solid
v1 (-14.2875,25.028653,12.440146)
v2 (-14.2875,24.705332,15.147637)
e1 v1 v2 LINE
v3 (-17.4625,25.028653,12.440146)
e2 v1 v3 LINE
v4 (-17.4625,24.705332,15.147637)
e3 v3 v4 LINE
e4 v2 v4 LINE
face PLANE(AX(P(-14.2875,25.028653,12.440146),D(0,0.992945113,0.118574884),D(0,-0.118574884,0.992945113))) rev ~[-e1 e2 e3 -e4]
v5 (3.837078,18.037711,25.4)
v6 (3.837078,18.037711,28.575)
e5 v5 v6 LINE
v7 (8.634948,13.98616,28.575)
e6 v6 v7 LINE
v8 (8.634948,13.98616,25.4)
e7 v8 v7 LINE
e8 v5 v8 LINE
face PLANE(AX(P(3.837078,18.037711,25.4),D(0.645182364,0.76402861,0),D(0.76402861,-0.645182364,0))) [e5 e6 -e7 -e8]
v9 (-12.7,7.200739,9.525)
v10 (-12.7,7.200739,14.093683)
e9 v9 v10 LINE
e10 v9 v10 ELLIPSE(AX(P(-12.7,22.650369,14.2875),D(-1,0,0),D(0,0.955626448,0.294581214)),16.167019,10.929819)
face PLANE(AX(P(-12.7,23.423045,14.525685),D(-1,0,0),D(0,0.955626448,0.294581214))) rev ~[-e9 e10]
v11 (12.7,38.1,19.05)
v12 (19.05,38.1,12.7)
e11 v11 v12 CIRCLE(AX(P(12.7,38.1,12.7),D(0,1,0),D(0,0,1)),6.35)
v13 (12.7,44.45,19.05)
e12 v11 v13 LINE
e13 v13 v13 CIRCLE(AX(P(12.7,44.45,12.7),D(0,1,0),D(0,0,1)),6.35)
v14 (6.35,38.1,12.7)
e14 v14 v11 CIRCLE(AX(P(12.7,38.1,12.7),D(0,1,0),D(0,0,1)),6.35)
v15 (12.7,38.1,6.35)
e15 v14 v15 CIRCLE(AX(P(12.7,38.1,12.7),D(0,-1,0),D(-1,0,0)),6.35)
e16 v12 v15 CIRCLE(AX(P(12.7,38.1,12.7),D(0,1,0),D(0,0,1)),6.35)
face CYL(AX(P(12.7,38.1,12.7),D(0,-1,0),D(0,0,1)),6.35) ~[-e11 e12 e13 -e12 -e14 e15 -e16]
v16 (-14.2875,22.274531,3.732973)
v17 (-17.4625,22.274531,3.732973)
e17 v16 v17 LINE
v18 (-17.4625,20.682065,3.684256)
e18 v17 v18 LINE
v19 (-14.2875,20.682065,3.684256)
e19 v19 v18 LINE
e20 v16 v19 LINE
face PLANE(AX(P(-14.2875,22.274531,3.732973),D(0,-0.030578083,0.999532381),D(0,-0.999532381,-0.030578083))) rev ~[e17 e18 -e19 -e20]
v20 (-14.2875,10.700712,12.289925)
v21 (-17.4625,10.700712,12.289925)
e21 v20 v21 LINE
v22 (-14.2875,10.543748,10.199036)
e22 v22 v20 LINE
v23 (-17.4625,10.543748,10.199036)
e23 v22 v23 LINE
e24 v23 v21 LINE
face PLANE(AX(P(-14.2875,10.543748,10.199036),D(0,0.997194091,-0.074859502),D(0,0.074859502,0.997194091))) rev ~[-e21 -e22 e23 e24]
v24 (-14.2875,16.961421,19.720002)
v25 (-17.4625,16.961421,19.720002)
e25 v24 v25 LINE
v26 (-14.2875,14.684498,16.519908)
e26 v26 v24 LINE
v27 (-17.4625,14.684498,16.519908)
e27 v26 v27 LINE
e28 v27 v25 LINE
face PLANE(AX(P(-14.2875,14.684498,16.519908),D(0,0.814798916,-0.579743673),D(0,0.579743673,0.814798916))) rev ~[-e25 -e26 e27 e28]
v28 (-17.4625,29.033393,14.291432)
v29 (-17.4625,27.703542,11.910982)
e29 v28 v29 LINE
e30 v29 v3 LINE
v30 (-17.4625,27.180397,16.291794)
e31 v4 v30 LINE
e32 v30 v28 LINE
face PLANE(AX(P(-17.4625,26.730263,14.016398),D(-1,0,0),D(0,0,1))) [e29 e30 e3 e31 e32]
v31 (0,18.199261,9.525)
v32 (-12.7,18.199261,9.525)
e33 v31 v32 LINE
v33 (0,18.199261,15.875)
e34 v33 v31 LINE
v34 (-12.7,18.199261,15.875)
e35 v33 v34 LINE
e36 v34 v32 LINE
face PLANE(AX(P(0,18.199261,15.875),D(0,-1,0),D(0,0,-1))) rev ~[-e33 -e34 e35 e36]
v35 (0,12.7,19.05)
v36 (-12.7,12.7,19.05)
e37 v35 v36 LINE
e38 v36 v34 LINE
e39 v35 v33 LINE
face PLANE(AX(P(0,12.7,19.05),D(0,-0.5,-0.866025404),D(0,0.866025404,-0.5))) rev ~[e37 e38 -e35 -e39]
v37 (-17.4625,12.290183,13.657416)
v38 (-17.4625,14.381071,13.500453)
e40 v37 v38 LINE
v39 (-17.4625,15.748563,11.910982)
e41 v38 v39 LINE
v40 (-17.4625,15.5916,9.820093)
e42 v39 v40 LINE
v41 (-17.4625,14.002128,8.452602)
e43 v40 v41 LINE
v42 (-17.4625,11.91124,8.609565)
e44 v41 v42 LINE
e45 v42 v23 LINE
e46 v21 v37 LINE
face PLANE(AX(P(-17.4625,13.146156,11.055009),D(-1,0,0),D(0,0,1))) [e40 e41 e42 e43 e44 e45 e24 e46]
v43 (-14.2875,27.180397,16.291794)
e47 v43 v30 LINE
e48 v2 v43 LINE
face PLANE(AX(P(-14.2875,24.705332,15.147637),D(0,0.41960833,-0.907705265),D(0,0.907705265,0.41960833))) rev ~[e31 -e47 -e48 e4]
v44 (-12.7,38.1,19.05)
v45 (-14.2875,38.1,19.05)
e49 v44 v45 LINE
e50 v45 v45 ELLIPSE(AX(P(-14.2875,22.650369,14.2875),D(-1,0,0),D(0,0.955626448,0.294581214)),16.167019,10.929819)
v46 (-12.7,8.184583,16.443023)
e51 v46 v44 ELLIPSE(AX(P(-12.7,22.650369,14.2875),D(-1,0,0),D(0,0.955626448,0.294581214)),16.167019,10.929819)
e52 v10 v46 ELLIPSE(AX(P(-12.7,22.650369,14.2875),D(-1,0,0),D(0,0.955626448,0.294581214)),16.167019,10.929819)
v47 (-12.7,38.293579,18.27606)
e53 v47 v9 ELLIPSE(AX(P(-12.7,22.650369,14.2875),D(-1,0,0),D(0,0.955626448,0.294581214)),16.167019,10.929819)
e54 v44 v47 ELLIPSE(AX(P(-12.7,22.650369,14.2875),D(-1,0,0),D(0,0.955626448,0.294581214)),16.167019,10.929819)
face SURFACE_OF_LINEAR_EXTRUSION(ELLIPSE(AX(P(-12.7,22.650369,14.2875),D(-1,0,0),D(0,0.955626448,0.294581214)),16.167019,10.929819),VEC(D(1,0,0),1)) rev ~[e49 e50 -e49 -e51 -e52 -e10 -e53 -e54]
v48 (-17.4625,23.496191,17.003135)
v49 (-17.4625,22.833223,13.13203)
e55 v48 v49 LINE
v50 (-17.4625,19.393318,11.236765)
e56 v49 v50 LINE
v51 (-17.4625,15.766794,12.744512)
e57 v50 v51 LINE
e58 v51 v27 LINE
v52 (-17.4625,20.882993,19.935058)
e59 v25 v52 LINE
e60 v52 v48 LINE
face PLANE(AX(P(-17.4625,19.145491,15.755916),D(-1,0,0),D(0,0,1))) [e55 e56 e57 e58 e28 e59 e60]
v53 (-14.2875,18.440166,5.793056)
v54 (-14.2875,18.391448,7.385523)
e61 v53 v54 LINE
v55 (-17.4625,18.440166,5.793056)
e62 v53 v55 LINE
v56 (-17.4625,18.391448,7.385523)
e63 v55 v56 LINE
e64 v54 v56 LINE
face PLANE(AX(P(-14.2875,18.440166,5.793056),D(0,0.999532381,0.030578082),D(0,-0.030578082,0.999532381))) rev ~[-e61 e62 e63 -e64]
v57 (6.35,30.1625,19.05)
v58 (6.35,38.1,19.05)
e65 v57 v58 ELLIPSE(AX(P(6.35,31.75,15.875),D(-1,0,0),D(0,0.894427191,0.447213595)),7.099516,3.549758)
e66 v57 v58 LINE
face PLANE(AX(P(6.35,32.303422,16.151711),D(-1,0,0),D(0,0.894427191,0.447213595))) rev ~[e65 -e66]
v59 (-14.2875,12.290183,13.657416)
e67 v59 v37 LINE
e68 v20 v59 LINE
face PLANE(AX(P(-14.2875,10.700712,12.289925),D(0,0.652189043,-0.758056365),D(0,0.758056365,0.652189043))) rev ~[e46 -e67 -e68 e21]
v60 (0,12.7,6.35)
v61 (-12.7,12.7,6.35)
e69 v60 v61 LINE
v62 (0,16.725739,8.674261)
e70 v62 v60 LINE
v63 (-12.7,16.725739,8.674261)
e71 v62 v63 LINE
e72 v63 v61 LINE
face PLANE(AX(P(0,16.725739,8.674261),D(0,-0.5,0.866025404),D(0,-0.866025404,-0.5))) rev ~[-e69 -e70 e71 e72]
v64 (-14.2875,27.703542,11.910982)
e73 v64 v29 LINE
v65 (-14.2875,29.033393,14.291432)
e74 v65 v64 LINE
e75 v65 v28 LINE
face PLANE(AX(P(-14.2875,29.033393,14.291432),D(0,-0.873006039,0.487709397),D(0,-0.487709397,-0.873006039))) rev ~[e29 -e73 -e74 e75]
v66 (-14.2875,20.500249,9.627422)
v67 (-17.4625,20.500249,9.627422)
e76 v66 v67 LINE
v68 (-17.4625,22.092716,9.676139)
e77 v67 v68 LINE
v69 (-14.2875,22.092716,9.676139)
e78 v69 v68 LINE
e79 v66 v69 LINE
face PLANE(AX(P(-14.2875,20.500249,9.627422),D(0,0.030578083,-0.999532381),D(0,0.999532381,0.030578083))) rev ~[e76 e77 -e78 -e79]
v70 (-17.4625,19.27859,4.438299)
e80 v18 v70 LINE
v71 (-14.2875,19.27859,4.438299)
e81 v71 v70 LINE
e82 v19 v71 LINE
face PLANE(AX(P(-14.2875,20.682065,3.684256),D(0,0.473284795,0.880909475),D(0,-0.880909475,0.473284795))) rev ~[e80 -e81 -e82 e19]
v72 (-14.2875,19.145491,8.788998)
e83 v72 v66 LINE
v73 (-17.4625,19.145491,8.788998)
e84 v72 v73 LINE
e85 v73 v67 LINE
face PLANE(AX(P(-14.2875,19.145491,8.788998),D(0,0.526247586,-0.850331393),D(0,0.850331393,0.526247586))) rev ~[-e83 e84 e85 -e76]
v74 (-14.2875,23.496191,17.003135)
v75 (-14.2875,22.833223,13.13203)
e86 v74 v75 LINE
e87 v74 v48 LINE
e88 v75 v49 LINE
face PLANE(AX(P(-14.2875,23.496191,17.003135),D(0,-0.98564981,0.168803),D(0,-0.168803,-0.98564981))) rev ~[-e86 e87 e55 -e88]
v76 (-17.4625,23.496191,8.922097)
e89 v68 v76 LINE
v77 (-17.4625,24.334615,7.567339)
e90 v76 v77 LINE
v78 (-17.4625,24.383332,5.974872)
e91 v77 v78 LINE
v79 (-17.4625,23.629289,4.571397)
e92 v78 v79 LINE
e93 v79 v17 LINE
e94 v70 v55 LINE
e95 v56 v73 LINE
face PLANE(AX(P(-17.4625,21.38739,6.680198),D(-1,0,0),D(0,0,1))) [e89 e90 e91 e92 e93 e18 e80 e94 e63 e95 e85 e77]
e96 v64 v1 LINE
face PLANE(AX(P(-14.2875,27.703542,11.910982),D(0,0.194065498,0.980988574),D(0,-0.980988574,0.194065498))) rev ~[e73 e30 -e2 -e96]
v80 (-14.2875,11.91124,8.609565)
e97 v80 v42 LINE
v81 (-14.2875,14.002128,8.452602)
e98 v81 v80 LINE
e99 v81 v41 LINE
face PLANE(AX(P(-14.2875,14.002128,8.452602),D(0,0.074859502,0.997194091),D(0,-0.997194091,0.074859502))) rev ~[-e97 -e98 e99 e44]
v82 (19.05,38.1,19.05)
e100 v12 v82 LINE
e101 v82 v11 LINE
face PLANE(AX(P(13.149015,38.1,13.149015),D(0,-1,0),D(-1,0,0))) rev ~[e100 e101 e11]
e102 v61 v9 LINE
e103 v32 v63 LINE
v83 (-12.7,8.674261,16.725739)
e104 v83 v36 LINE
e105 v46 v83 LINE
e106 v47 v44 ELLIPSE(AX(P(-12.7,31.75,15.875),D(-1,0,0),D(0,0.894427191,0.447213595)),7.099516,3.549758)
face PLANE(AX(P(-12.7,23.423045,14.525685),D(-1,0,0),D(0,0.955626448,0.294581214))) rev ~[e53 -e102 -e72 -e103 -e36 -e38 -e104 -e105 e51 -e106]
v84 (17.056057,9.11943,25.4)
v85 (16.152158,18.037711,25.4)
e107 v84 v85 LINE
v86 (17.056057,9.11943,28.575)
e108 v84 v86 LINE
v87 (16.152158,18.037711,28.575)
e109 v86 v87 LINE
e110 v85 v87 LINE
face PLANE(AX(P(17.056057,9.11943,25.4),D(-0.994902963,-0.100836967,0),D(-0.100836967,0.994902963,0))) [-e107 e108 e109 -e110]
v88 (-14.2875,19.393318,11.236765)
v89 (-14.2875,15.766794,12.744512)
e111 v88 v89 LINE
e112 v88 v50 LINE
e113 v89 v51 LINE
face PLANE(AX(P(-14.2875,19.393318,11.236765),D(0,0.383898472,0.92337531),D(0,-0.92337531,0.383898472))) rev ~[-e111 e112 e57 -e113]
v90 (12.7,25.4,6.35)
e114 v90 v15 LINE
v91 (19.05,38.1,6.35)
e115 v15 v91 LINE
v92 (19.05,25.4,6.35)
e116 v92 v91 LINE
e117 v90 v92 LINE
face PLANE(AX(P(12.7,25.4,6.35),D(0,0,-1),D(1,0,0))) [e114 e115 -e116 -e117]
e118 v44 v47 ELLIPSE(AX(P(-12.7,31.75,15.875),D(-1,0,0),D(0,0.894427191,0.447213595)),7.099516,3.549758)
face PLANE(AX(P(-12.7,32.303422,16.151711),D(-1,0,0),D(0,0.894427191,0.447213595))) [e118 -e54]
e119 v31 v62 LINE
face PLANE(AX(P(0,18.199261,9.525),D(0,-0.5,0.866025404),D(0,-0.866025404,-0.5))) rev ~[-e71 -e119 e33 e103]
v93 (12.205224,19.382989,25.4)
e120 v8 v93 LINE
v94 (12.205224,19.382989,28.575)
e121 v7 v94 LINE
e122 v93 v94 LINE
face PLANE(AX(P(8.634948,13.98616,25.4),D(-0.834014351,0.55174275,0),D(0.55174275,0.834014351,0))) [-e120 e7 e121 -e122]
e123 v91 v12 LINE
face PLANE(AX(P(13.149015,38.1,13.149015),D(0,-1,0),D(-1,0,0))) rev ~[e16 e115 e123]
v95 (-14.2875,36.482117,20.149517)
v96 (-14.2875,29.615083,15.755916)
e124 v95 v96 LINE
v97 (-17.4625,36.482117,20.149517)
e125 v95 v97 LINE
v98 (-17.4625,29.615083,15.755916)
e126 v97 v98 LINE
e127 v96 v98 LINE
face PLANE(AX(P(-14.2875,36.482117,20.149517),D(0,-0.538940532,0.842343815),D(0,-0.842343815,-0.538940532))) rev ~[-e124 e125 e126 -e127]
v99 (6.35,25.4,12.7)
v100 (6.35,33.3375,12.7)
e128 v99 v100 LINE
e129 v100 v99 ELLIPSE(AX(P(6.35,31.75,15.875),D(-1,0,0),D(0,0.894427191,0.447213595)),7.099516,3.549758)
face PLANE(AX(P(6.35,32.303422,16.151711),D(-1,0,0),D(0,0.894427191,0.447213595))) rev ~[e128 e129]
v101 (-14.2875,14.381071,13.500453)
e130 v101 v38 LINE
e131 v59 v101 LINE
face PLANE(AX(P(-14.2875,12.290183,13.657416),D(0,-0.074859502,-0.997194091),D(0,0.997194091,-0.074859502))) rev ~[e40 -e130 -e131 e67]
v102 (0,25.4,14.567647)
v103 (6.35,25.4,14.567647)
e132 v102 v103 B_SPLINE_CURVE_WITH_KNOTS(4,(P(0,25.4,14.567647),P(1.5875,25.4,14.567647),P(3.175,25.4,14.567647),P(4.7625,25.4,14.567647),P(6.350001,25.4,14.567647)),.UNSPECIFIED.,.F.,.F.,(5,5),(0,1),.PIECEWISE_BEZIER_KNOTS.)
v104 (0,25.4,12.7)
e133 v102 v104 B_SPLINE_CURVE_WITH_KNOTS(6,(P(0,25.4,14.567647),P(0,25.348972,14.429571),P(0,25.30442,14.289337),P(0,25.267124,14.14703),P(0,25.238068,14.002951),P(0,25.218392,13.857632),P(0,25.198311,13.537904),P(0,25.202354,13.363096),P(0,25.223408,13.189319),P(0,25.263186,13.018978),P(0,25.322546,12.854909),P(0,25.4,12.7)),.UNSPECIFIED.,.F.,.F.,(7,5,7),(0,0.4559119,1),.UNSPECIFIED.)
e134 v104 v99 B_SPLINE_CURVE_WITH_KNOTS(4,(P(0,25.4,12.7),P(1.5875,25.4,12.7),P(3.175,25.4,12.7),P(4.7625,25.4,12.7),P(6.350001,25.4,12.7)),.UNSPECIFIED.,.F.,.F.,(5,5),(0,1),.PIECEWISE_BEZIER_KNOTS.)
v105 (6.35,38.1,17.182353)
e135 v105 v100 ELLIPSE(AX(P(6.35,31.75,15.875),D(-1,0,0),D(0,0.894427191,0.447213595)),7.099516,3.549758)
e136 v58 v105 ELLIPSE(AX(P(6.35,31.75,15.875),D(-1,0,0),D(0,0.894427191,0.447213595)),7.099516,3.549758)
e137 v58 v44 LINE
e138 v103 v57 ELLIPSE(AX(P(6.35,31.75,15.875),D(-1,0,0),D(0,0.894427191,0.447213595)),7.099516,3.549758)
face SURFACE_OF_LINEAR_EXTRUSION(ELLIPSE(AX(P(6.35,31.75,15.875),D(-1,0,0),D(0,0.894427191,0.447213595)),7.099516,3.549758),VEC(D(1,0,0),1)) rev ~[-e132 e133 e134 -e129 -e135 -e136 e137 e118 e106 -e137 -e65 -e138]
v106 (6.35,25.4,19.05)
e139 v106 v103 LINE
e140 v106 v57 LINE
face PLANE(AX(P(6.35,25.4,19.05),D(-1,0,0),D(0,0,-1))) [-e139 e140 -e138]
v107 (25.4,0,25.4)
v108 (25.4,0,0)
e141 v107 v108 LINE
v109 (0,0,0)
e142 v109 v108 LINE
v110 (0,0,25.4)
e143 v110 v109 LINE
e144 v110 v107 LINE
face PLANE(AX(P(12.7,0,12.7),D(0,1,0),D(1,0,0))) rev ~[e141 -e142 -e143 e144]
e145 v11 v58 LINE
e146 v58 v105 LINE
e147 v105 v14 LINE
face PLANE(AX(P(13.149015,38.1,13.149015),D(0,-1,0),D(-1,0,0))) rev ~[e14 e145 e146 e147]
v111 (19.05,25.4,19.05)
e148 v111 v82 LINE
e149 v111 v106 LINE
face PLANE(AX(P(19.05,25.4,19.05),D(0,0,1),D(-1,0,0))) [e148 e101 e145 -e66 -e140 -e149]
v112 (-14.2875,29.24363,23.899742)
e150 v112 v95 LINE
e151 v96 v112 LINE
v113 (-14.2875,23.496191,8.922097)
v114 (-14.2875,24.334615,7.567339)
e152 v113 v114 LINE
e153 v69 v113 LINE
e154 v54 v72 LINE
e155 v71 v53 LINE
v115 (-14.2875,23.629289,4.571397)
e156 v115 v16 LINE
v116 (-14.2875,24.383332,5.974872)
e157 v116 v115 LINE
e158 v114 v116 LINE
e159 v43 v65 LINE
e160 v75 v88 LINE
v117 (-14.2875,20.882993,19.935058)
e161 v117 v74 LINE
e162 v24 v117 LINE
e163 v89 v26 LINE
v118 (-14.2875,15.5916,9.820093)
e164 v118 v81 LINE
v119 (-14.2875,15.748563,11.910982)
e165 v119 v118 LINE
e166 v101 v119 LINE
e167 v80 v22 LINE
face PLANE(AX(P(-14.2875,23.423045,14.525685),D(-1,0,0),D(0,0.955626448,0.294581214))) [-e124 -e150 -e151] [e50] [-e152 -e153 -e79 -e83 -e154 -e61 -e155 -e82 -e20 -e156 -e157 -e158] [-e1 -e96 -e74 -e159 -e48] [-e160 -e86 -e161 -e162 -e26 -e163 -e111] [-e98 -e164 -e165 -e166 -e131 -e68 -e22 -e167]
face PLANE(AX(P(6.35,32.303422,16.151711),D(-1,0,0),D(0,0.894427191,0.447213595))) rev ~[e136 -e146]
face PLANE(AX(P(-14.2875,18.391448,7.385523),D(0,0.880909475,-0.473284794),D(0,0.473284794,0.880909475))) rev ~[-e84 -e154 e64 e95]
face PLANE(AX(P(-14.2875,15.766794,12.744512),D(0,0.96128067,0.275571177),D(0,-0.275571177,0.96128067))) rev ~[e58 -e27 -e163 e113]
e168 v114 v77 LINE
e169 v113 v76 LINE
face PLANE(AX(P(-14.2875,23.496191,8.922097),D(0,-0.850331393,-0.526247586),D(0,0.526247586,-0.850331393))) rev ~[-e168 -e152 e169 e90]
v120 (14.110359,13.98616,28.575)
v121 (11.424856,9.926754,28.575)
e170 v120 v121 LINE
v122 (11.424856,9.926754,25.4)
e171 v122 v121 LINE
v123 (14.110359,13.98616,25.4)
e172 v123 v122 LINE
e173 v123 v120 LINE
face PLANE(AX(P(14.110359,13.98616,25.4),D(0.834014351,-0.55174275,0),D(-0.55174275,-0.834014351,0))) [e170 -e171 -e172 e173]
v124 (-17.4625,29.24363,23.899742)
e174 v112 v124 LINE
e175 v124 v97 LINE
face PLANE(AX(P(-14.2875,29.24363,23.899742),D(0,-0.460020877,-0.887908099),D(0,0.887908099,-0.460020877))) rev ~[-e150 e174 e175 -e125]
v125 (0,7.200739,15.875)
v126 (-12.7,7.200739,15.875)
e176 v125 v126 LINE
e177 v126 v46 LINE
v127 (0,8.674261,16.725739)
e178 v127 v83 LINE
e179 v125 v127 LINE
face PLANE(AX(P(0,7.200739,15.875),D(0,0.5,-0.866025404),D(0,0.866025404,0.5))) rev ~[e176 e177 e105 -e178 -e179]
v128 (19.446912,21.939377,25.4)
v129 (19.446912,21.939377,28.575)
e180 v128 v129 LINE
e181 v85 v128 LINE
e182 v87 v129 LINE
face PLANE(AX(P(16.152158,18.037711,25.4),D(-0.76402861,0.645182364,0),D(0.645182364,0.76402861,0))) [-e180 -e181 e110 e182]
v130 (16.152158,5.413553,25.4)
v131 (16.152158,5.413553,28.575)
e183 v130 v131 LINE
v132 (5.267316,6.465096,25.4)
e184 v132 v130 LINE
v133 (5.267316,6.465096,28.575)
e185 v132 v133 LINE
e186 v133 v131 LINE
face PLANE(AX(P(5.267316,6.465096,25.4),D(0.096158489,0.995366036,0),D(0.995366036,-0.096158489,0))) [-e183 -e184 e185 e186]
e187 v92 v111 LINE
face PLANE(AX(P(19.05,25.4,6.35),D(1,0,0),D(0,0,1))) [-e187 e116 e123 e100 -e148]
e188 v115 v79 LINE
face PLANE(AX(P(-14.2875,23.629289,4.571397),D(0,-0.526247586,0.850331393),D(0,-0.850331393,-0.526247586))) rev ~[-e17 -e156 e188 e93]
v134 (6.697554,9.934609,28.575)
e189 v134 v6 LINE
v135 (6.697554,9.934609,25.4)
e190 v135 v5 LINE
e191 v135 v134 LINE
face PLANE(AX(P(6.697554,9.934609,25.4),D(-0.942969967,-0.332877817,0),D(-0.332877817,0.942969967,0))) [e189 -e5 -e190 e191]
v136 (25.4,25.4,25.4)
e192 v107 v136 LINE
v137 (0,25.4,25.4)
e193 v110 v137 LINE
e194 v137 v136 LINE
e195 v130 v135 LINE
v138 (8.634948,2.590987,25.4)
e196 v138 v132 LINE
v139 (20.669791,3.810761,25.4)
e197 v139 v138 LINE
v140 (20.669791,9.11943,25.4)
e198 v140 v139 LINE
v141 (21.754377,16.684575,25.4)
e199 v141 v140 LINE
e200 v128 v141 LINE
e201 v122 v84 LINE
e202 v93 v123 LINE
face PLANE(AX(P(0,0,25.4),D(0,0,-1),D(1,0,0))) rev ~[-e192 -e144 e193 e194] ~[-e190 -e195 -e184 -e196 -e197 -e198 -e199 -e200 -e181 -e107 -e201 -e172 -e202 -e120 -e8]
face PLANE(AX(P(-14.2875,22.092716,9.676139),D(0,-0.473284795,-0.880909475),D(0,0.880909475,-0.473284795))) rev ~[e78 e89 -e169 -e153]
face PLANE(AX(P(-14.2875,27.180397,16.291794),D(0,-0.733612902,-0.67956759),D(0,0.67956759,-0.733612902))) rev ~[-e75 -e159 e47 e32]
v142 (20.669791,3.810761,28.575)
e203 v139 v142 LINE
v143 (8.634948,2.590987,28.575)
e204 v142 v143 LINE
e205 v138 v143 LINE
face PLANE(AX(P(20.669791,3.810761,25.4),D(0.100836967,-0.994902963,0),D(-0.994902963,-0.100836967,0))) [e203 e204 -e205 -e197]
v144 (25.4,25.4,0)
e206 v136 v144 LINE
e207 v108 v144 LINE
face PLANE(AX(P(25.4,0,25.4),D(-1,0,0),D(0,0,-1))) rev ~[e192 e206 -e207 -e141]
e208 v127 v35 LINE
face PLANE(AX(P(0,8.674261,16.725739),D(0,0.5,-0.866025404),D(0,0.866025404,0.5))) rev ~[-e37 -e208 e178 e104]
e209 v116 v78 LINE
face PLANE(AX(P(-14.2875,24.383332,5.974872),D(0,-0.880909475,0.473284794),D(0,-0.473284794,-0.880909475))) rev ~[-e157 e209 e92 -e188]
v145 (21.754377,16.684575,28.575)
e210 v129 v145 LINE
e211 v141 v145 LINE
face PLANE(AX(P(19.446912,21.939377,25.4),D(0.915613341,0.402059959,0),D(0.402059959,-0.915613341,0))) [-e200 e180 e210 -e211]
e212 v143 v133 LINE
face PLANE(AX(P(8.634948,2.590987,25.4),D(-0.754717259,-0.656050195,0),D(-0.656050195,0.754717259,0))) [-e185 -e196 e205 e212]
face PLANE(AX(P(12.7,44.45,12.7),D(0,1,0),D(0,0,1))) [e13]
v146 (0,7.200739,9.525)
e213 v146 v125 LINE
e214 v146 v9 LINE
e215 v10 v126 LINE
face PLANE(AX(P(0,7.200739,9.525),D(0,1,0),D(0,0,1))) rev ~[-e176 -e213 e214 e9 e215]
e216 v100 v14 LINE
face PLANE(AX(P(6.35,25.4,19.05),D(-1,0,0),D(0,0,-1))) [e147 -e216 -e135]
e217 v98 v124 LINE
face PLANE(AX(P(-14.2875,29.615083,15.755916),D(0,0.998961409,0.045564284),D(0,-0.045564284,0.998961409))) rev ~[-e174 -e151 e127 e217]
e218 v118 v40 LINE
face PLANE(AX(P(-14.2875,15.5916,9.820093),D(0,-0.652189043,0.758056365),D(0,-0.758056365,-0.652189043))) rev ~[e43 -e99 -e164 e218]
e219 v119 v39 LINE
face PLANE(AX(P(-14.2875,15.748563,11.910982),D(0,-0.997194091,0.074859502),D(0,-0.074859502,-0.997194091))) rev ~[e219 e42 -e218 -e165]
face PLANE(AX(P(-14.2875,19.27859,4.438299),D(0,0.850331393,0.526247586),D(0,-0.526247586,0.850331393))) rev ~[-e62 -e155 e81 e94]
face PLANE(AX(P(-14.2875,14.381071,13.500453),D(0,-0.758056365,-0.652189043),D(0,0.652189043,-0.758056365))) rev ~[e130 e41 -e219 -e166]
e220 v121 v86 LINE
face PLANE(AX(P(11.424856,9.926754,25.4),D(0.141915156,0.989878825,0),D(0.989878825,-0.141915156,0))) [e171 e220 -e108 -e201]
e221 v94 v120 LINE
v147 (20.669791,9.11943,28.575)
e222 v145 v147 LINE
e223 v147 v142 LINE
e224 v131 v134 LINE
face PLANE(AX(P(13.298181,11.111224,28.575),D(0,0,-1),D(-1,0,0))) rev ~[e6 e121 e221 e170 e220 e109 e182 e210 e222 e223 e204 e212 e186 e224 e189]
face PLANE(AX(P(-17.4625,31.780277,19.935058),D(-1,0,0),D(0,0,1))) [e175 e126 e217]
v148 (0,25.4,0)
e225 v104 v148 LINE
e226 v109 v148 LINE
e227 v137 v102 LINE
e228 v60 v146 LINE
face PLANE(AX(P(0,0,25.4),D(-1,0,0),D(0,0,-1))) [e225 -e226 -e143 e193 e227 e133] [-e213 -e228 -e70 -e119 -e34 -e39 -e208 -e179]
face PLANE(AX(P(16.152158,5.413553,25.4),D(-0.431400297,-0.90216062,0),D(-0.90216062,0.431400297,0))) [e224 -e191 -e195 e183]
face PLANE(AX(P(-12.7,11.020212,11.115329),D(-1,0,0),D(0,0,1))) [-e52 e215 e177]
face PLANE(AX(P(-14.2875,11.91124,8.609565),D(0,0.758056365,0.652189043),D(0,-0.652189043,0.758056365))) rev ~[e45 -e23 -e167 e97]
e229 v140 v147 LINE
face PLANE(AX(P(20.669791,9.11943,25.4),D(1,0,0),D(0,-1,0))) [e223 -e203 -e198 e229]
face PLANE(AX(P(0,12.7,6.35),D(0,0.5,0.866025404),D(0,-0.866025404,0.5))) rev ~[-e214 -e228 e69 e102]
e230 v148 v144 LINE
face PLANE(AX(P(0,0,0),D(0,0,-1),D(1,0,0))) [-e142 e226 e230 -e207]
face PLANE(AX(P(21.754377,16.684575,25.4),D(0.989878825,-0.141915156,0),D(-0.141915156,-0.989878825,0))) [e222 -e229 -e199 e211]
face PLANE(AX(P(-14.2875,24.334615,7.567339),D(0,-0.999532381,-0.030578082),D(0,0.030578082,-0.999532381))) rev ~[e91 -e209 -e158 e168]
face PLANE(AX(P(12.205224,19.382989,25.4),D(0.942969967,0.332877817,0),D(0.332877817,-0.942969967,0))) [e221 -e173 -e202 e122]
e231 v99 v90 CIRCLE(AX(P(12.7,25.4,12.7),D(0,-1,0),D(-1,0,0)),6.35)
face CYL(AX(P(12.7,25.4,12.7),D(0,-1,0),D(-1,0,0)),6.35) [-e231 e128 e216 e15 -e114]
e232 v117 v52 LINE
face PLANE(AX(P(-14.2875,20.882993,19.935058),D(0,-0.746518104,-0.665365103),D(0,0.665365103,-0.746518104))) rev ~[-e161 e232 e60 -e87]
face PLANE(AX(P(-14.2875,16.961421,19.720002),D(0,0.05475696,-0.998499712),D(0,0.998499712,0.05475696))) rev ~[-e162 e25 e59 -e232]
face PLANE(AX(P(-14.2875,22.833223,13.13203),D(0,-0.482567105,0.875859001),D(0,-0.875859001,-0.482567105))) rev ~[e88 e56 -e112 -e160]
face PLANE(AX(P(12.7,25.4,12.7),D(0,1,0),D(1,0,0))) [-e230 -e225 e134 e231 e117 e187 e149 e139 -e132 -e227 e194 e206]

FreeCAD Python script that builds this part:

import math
import FreeCAD as App
import Part
import Sketcher

V = App.Vector
Q = App.Units.Quantity

doc = App.newDocument("Part")
body = doc.addObject("PartDesign::Body", "Body")

sketch1 = body.newObject("Sketcher::SketchObject", "Sketch")
sketch1.AttachmentSupport = (doc.getObject("XZ_Plane"), [""])
sketch1.MapMode = "FlatFace"
sketch1.addGeometry(Part.LineSegment(V(0, 0, 0), V(0, 25.4, 0)), False)
sketch1.addGeometry(Part.LineSegment(V(0, 25.4, 0), V(25.4, 25.4, 0)), False)
sketch1.addGeometry(Part.LineSegment(V(25.4, 25.4, 0), V(25.4, 0, 0)), False)
sketch1.addGeometry(Part.LineSegment(V(25.4, 0, 0), V(0, 0, 0)), False)
sketch1.addConstraint(Sketcher.Constraint("Coincident", 0, 2, 1, 1))
sketch1.addConstraint(Sketcher.Constraint("Coincident", 1, 2, 2, 1))
sketch1.addConstraint(Sketcher.Constraint("Coincident", 2, 2, 3, 1))
sketch1.addConstraint(Sketcher.Constraint("Coincident", 3, 2, 0, 1))
sketch1.addConstraint(Sketcher.Constraint("Vertical", 0))
sketch1.addConstraint(Sketcher.Constraint("Horizontal", 1))
sketch1.addConstraint(Sketcher.Constraint("Vertical", 2))
sketch1.addConstraint(Sketcher.Constraint("Horizontal", 3))
sketch1.addConstraint(Sketcher.Constraint("Coincident", 3, 2, -1, 1))
sketch1.addConstraint(Sketcher.Constraint("Equal", 3, 0))
sketch1.addConstraint(Sketcher.Constraint("DistanceX", 1, 1, 1, 2, Q("1 in")))
pad1 = body.newObject("PartDesign::Pad", "Pad")
pad1.Profile = sketch1
pad1.Length = Q("1 in")
pad1.Reversed = True

sketch2 = body.newObject("Sketcher::SketchObject", "Sketch001")
sketch2.AttachmentSupport = (doc.getObject("XZ_Plane"), [""])
sketch2.MapMode = "FlatFace"
sketch2.AttachmentOffset = App.Placement(V(0, 0, -1 * 25.4), App.Rotation())
sketch2.addGeometry(Part.ArcOfCircle(Part.Circle(V(12.7, 12.7, 0), V(0, 0, 1), 6.35), math.radians(180), math.radians(270)), False)
sketch2.addGeometry(Part.LineSegment(V(6.35, 12.7, 0), V(6.35, 19.05, 0)), False)
sketch2.addGeometry(Part.LineSegment(V(6.35, 19.05, 0), V(19.05, 19.05, 0)), False)
sketch2.addGeometry(Part.LineSegment(V(19.05, 19.05, 0), V(19.05, 6.35, 0)), False)
sketch2.addGeometry(Part.LineSegment(V(19.05, 6.35, 0), V(12.7, 6.35, 0)), False)
sketch2.addConstraint(Sketcher.Constraint("Tangent", 0, 1, 1, 1))
sketch2.addConstraint(Sketcher.Constraint("Coincident", 1, 2, 2, 1))
sketch2.addConstraint(Sketcher.Constraint("Coincident", 2, 2, 3, 1))
sketch2.addConstraint(Sketcher.Constraint("Coincident", 3, 2, 4, 1))
sketch2.addConstraint(Sketcher.Constraint("Tangent", 4, 2, 0, 2))
sketch2.addConstraint(Sketcher.Constraint("Vertical", 1))
sketch2.addConstraint(Sketcher.Constraint("Horizontal", 2))
sketch2.addConstraint(Sketcher.Constraint("Vertical", 3))
sketch2.addConstraint(Sketcher.Constraint("Horizontal", 4))
sketch2.addConstraint(Sketcher.Constraint("Equal", 4, 1))
sketch2.addConstraint(Sketcher.Constraint("Radius", 0, Q("0.25 in")))
sketch2.addConstraint(Sketcher.Constraint("DistanceX", 2, 1, 2, 2, Q("0.5 in")))
sketch2.addConstraint(Sketcher.Constraint("DistanceX", -1, 1, 0, 3, Q("0.5 in")))
sketch2.addConstraint(Sketcher.Constraint("DistanceY", -1, 1, 0, 3, Q("0.5 in")))
pad2 = body.newObject("PartDesign::Pad", "Pad001")
pad2.Profile = sketch2
pad2.Length = Q("0.5 in")
pad2.Reversed = True

sketch3 = body.newObject("Sketcher::SketchObject", "Sketch002")
sketch3.AttachmentSupport = (doc.getObject("XZ_Plane"), [""])
sketch3.MapMode = "FlatFace"
sketch3.AttachmentOffset = App.Placement(V(0, 0, -1.5 * 25.4), App.Rotation())
sketch3.addGeometry(Part.Circle(V(12.7, 12.7, 0), V(0, 0, 1), 6.35), False)
sketch3.addConstraint(Sketcher.Constraint("Diameter", 0, Q("0.5 in")))
sketch3.addConstraint(Sketcher.Constraint("DistanceX", -1, 1, 0, 3, Q("0.5 in")))
sketch3.addConstraint(Sketcher.Constraint("DistanceY", -1, 1, 0, 3, Q("0.5 in")))
pad3 = body.newObject("PartDesign::Pad", "Pad002")
pad3.Profile = sketch3
pad3.Length = Q("0.25 in")
pad3.Reversed = True

sketch4 = body.newObject("Sketcher::SketchObject", "Sketch003")
sketch4.AttachmentSupport = (doc.getObject("YZ_Plane"), [""])
sketch4.MapMode = "FlatFace"
sketch4.AttachmentOffset = App.Placement(V(0, 0, 0.25 * 25.4), App.Rotation())
sketch4.addGeometry(Part.Ellipse(V(38.1, 19.05, 0), V(30.1625, 19.05, 0), V(31.75, 15.875, 0)), False)
sketch4.addConstraint(Sketcher.Constraint("Block", 0))
pad4 = body.newObject("PartDesign::Pad", "Pad003")
pad4.Profile = sketch4
pad4.Length = Q("0.75 in")
pad4.Reversed = True

sketch5 = body.newObject("Sketcher::SketchObject", "Sketch004")
sketch5.AttachmentSupport = (doc.getObject("YZ_Plane"), [""])
sketch5.MapMode = "FlatFace"
sketch5.addGeometry(Part.LineSegment(V(18.199261, 9.525, 0), V(16.725739, 8.674261, 0)), False)
sketch5.addGeometry(Part.LineSegment(V(16.725739, 8.674261, 0), V(8.674261, 16.725739, 0)), False)
sketch5.addGeometry(Part.LineSegment(V(8.674261, 16.725739, 0), V(12.7, 19.05, 0)), False)
sketch5.addGeometry(Part.LineSegment(V(12.7, 19.05, 0), V(18.199261, 15.875, 0)), False)
sketch5.addGeometry(Part.LineSegment(V(18.199261, 15.875, 0), V(18.199261, 9.525, 0)), False)
sketch5.addGeometry(Part.LineSegment(V(8.674261, 16.725739, 0), V(16.725739, 8.674261, 0)), False)
sketch5.addGeometry(Part.LineSegment(V(16.725739, 8.674261, 0), V(12.7, 6.35, 0)), False)
sketch5.addGeometry(Part.LineSegment(V(12.7, 6.35, 0), V(7.200739, 9.525, 0)), False)
sketch5.addGeometry(Part.LineSegment(V(7.200739, 9.525, 0), V(7.200739, 15.875, 0)), False)
sketch5.addGeometry(Part.LineSegment(V(7.200739, 15.875, 0), V(8.674261, 16.725739, 0)), False)
sketch5.addConstraint(Sketcher.Constraint("Coincident", 0, 2, 1, 1))
sketch5.addConstraint(Sketcher.Constraint("Coincident", 1, 2, 2, 1))
sketch5.addConstraint(Sketcher.Constraint("Coincident", 2, 2, 3, 1))
sketch5.addConstraint(Sketcher.Constraint("Coincident", 3, 2, 4, 1))
sketch5.addConstraint(Sketcher.Constraint("Coincident", 4, 2, 0, 1))
sketch5.addConstraint(Sketcher.Constraint("Coincident", 5, 2, 6, 1))
sketch5.addConstraint(Sketcher.Constraint("Coincident", 6, 2, 7, 1))
sketch5.addConstraint(Sketcher.Constraint("Coincident", 7, 2, 8, 1))
sketch5.addConstraint(Sketcher.Constraint("Coincident", 8, 2, 9, 1))
sketch5.addConstraint(Sketcher.Constraint("Coincident", 9, 2, 5, 1))
sketch5.addConstraint(Sketcher.Constraint("Vertical", 4))
sketch5.addConstraint(Sketcher.Constraint("Vertical", 8))
sketch5.addConstraint(Sketcher.Constraint("Coincident", 5, 2, 0, 2))
sketch5.addConstraint(Sketcher.Constraint("Coincident", 9, 2, 1, 2))
sketch5.addConstraint(Sketcher.Constraint("Parallel", 0, 2))
sketch5.addConstraint(Sketcher.Constraint("Parallel", 2, 6))
sketch5.addConstraint(Sketcher.Constraint("Parallel", 3, 7))
sketch5.addConstraint(Sketcher.Constraint("Parallel", 6, 9))
sketch5.addConstraint(Sketcher.Constraint("Horizontal", 4, 2, 7, 2))
sketch5.addConstraint(Sketcher.Constraint("Horizontal", 3, 2, 8, 2))
sketch5.addConstraint(Sketcher.Constraint("Vertical", 2, 2, 6, 2))
sketch5.addConstraint(Sketcher.Constraint("Equal", 2, 6))
sketch5.addConstraint(Sketcher.Constraint("Angle", 0, Q("-150 deg")))
sketch5.addConstraint(Sketcher.Constraint("Angle", 1, Q("135 deg")))
sketch5.addConstraint(Sketcher.Constraint("DistanceY", 4, 2, 4, 1, Q("0.25 in")))
sketch5.addConstraint(Sketcher.Constraint("DistanceX", -1, 1, 2, 2, Q("0.5 in")))
sketch5.addConstraint(Sketcher.Constraint("Distance", 3, Q("0.25 in")))
sketch5.addConstraint(Sketcher.Constraint("DistanceY", -1, 1, 2, 2, Q("0.75 in")))
pad5 = body.newObject("PartDesign::Pad", "Pad004")
pad5.Profile = sketch5
pad5.Length = Q("0.5 in")
pad5.Reversed = True

sketch6 = body.newObject("Sketcher::SketchObject", "Sketch005")
sketch6.AttachmentSupport = (doc.getObject("YZ_Plane"), [""])
sketch6.MapMode = "FlatFace"
sketch6.AttachmentOffset = App.Placement(V(0, 0, -0.5 * 25.4), App.Rotation())
sketch6.addGeometry(Part.Ellipse(V(38.1, 19.05, 0), V(19.43065, 24.732324, 0), V(22.650369, 14.2875, 0)), False)
sketch6.addConstraint(Sketcher.Constraint("Block", 0))
pad6 = body.newObject("PartDesign::Pad", "Pad005")
pad6.Profile = sketch6
pad6.Length = Q("0.0625 in")
pad6.Reversed = True

sketch7 = body.newObject("Sketcher::SketchObject", "Sketch006")
sketch7.AttachmentSupport = (doc.getObject("YZ_Plane"), [""])
sketch7.MapMode = "FlatFace"
sketch7.AttachmentOffset = App.Placement(V(0, 0, -0.5625 * 25.4), App.Rotation())
sketch7.addGeometry(Part.LineSegment(V(23.629289, 4.571397, 0), V(22.274531, 3.732973, 0)), False)
sketch7.addGeometry(Part.LineSegment(V(22.274531, 3.732973, 0), V(20.682065, 3.684256, 0)), False)
sketch7.addGeometry(Part.LineSegment(V(20.682065, 3.684256, 0), V(19.27859, 4.438299, 0)), False)
sketch7.addGeometry(Part.LineSegment(V(19.27859, 4.438299, 0), V(18.440166, 5.793056, 0)), False)
sketch7.addGeometry(Part.LineSegment(V(18.440166, 5.793056, 0), V(18.391448, 7.385523, 0)), False)
sketch7.addGeometry(Part.LineSegment(V(18.391448, 7.385523, 0), V(19.145491, 8.788998, 0)), False)
sketch7.addGeometry(Part.LineSegment(V(19.145491, 8.788998, 0), V(20.500249, 9.627422, 0)), False)
sketch7.addGeometry(Part.LineSegment(V(20.500249, 9.627422, 0), V(22.092716, 9.676139, 0)), False)
sketch7.addGeometry(Part.LineSegment(V(22.092716, 9.676139, 0), V(23.496191, 8.922097, 0)), False)
sketch7.addGeometry(Part.LineSegment(V(23.496191, 8.922097, 0), V(24.334615, 7.567339, 0)), False)
sketch7.addGeometry(Part.LineSegment(V(24.334615, 7.567339, 0), V(24.383332, 5.974872, 0)), False)
sketch7.addGeometry(Part.LineSegment(V(24.383332, 5.974872, 0), V(23.629289, 4.571397, 0)), False)
sketch7.addGeometry(Part.LineSegment(V(15.5916, 9.820093, 0), V(14.002128, 8.452602, 0)), False)
sketch7.addGeometry(Part.LineSegment(V(14.002128, 8.452602, 0), V(11.91124, 8.609565, 0)), False)
sketch7.addGeometry(Part.LineSegment(V(11.91124, 8.609565, 0), V(10.543748, 10.199036, 0)), False)
sketch7.addGeometry(Part.LineSegment(V(10.543748, 10.199036, 0), V(10.700712, 12.289925, 0)), False)
sketch7.addGeometry(Part.LineSegment(V(10.700712, 12.289925, 0), V(12.290183, 13.657416, 0)), False)
sketch7.addGeometry(Part.LineSegment(V(12.290183, 13.657416, 0), V(14.381071, 13.500453, 0)), False)
sketch7.addGeometry(Part.LineSegment(V(14.381071, 13.500453, 0), V(15.748563, 11.910982, 0)), False)
sketch7.addGeometry(Part.LineSegment(V(15.748563, 11.910982, 0), V(15.5916, 9.820093, 0)), False)
sketch7.addGeometry(Part.LineSegment(V(27.703542, 11.910982, 0), V(25.028653, 12.440146, 0)), False)
sketch7.addGeometry(Part.LineSegment(V(25.028653, 12.440146, 0), V(24.705332, 15.147637, 0)), False)
sketch7.addGeometry(Part.LineSegment(V(24.705332, 15.147637, 0), V(27.180397, 16.291794, 0)), False)
sketch7.addGeometry(Part.LineSegment(V(27.180397, 16.291794, 0), V(29.033393, 14.291432, 0)), False)
sketch7.addGeometry(Part.LineSegment(V(29.033393, 14.291432, 0), V(27.703542, 11.910982, 0)), False)
sketch7.addGeometry(Part.LineSegment(V(23.496191, 17.003135, 0), V(22.833223, 13.13203, 0)), False)
sketch7.addGeometry(Part.LineSegment(V(22.833223, 13.13203, 0), V(19.393318, 11.236765, 0)), False)
sketch7.addGeometry(Part.LineSegment(V(19.393318, 11.236765, 0), V(15.766794, 12.744512, 0)), False)
sketch7.addGeometry(Part.LineSegment(V(15.766794, 12.744512, 0), V(14.684498, 16.519908, 0)), False)
sketch7.addGeometry(Part.LineSegment(V(14.684498, 16.519908, 0), V(16.961421, 19.720002, 0)), False)
sketch7.addGeometry(Part.LineSegment(V(16.961421, 19.720002, 0), V(20.882993, 19.935058, 0)), False)
sketch7.addGeometry(Part.LineSegment(V(20.882993, 19.935058, 0), V(23.496191, 17.003135, 0)), False)
sketch7.addGeometry(Part.LineSegment(V(29.615083, 15.755916, 0), V(29.24363, 23.899742, 0)), False)
sketch7.addGeometry(Part.LineSegment(V(29.24363, 23.899742, 0), V(36.482117, 20.149517, 0)), False)
sketch7.addGeometry(Part.LineSegment(V(36.482117, 20.149517, 0), V(29.615083, 15.755916, 0)), False)
sketch7.addConstraint(Sketcher.Constraint("Coincident", 0, 2, 1, 1))
sketch7.addConstraint(Sketcher.Constraint("Coincident", 1, 2, 2, 1))
sketch7.addConstraint(Sketcher.Constraint("Coincident", 2, 2, 3, 1))
sketch7.addConstraint(Sketcher.Constraint("Coincident", 3, 2, 4, 1))
sketch7.addConstraint(Sketcher.Constraint("Coincident", 4, 2, 5, 1))
sketch7.addConstraint(Sketcher.Constraint("Coincident", 5, 2, 6, 1))
sketch7.addConstraint(Sketcher.Constraint("Coincident", 6, 2, 7, 1))
sketch7.addConstraint(Sketcher.Constraint("Coincident", 7, 2, 8, 1))
sketch7.addConstraint(Sketcher.Constraint("Coincident", 8, 2, 9, 1))
sketch7.addConstraint(Sketcher.Constraint("Coincident", 9, 2, 10, 1))
sketch7.addConstraint(Sketcher.Constraint("Coincident", 10, 2, 11, 1))
sketch7.addConstraint(Sketcher.Constraint("Coincident", 11, 2, 0, 1))
sketch7.addConstraint(Sketcher.Constraint("Coincident", 12, 2, 13, 1))
sketch7.addConstraint(Sketcher.Constraint("Coincident", 13, 2, 14, 1))
sketch7.addConstraint(Sketcher.Constraint("Coincident", 14, 2, 15, 1))
sketch7.addConstraint(Sketcher.Constraint("Coincident", 15, 2, 16, 1))
sketch7.addConstraint(Sketcher.Constraint("Coincident", 16, 2, 17, 1))
sketch7.addConstraint(Sketcher.Constraint("Coincident", 17, 2, 18, 1))
sketch7.addConstraint(Sketcher.Constraint("Coincident", 18, 2, 19, 1))
sketch7.addConstraint(Sketcher.Constraint("Coincident", 19, 2, 12, 1))
sketch7.addConstraint(Sketcher.Constraint("Coincident", 20, 2, 21, 1))
sketch7.addConstraint(Sketcher.Constraint("Coincident", 21, 2, 22, 1))
sketch7.addConstraint(Sketcher.Constraint("Coincident", 22, 2, 23, 1))
sketch7.addConstraint(Sketcher.Constraint("Coincident", 23, 2, 24, 1))
sketch7.addConstraint(Sketcher.Constraint("Coincident", 24, 2, 20, 1))
sketch7.addConstraint(Sketcher.Constraint("Coincident", 25, 2, 26, 1))
sketch7.addConstraint(Sketcher.Constraint("Coincident", 26, 2, 27, 1))
sketch7.addConstraint(Sketcher.Constraint("Coincident", 27, 2, 28, 1))
sketch7.addConstraint(Sketcher.Constraint("Coincident", 28, 2, 29, 1))
sketch7.addConstraint(Sketcher.Constraint("Coincident", 29, 2, 30, 1))
sketch7.addConstraint(Sketcher.Constraint("Coincident", 30, 2, 31, 1))
sketch7.addConstraint(Sketcher.Constraint("Coincident", 31, 2, 25, 1))
sketch7.addConstraint(Sketcher.Constraint("Coincident", 32, 2, 33, 1))
sketch7.addConstraint(Sketcher.Constraint("Coincident", 33, 2, 34, 1))
sketch7.addConstraint(Sketcher.Constraint("Coincident", 34, 2, 32, 1))
sketch7.addConstraint(Sketcher.Constraint("Perpendicular", 0, 3))
sketch7.addConstraint(Sketcher.Constraint("Perpendicular", 1, 4))
sketch7.addConstraint(Sketcher.Constraint("Perpendicular", 2, 5))
sketch7.addConstraint(Sketcher.Constraint("Perpendicular", 3, 6))
sketch7.addConstraint(Sketcher.Constraint("Perpendicular", 4, 7))
sketch7.addConstraint(Sketcher.Constraint("Perpendicular", 5, 8))
sketch7.addConstraint(Sketcher.Constraint("Perpendicular", 6, 9))
sketch7.addConstraint(Sketcher.Constraint("Perpendicular", 7, 10))
sketch7.addConstraint(Sketcher.Constraint("Perpendicular", 8, 11))
sketch7.addConstraint(Sketcher.Constraint("Perpendicular", 12, 14))
sketch7.addConstraint(Sketcher.Constraint("Perpendicular", 13, 15))
sketch7.addConstraint(Sketcher.Constraint("Perpendicular", 14, 16))
sketch7.addConstraint(Sketcher.Constraint("Perpendicular", 15, 17))
sketch7.addConstraint(Sketcher.Constraint("Perpendicular", 16, 18))
sketch7.addConstraint(Sketcher.Constraint("Perpendicular", 17, 19))
sketch7.addConstraint(Sketcher.Constraint("Horizontal", 18, 2, 24, 2))
sketch7.addConstraint(Sketcher.Constraint("Vertical", 8, 2, 31, 2))
sketch7.addConstraint(Sketcher.Constraint("Equal", 0, 1))
sketch7.addConstraint(Sketcher.Constraint("Equal", 1, 2))
sketch7.addConstraint(Sketcher.Constraint("Equal", 2, 3))
sketch7.addConstraint(Sketcher.Constraint("Equal", 3, 4))
sketch7.addConstraint(Sketcher.Constraint("Equal", 4, 5))
sketch7.addConstraint(Sketcher.Constraint("Equal", 5, 6))
sketch7.addConstraint(Sketcher.Constraint("Equal", 6, 7))
sketch7.addConstraint(Sketcher.Constraint("Equal", 7, 8))
sketch7.addConstraint(Sketcher.Constraint("Equal", 8, 9))
sketch7.addConstraint(Sketcher.Constraint("Equal", 12, 13))
sketch7.addConstraint(Sketcher.Constraint("Equal", 13, 14))
sketch7.addConstraint(Sketcher.Constraint("Equal", 14, 15))
sketch7.addConstraint(Sketcher.Constraint("Equal", 15, 16))
sketch7.addConstraint(Sketcher.Constraint("Equal", 16, 17))
sketch7.addConstraint(Sketcher.Constraint("Equal", 20, 21))
sketch7.addConstraint(Sketcher.Constraint("Equal", 21, 22))
sketch7.addConstraint(Sketcher.Constraint("Equal", 22, 23))
sketch7.addConstraint(Sketcher.Constraint("Equal", 23, 24))
sketch7.addConstraint(Sketcher.Constraint("Equal", 25, 26))
sketch7.addConstraint(Sketcher.Constraint("Equal", 26, 27))
sketch7.addConstraint(Sketcher.Constraint("Equal", 27, 28))
sketch7.addConstraint(Sketcher.Constraint("Equal", 28, 29))
sketch7.addConstraint(Sketcher.Constraint("Equal", 29, 30))
sketch7.addConstraint(Sketcher.Constraint("Equal", 30, 31))
sketch7.addConstraint(Sketcher.Constraint("Equal", 32, 33))
sketch7.addConstraint(Sketcher.Constraint("Equal", 33, 34))
sketch7.addConstraint(Sketcher.Constraint("DistanceX", 8, 2, 23, 2, Q("0.2180001 in")))
sketch7.addConstraint(Sketcher.Constraint("DistanceY", 8, 2, 21, 2, Q("0.2451 in")))
sketch7.addConstraint(Sketcher.Constraint("DistanceY", -1, 1, 2, 2, Q("4.438299 mm")))
sketch7.addConstraint(Sketcher.Constraint("DistanceY", -1, 1, 5, 2, Q("8.788998 mm")))
sketch7.addConstraint(Sketcher.Constraint("DistanceY", -1, 1, 12, 2, Q("8.452602 mm")))
sketch7.addConstraint(Sketcher.Constraint("DistanceX", -1, 1, 19, 2, Q("15.5916 mm")))
sketch7.addConstraint(Sketcher.Constraint("DistanceX", -1, 1, 28, 2, Q("14.684498 mm")))
sketch7.addConstraint(Sketcher.Constraint("DistanceX", 3, 2, 1, 2, Q("2.241899 mm")))
sketch7.addConstraint(Sketcher.Constraint("DistanceY", 1, 2, 3, 2, Q("2.108801 mm")))
sketch7.addConstraint(Sketcher.Constraint("DistanceX", 5, 2, 2, 2, Q("0.133098 mm")))
sketch7.addConstraint(Sketcher.Constraint("DistanceX", 14, 2, 4, 2, Q("7.8477 mm")))
sketch7.addConstraint(Sketcher.Constraint("DistanceY", 4, 2, 15, 2, Q("4.904402 mm")))
sketch7.addConstraint(Sketcher.Constraint("DistanceY", 21, 2, 31, 2, Q("1.855498 mm")))
sketch7.addConstraint(Sketcher.Constraint("DistanceX", 21, 2, 32, 2, Q("4.538298 mm")))
sketch7.addConstraint(Sketcher.Constraint("Distance", 12, Q("2.096772 mm")))
sketch7.addConstraint(Sketcher.Constraint("DistanceX", -1, 1, 0, 2, Q("22.274531 mm")))
sketch7.addConstraint(Sketcher.Constraint("DistanceX", -1, 1, 21, 2, Q("24.705332 mm")))
sketch7.addConstraint(Sketcher.Constraint("DistanceY", -1, 1, 23, 2, Q("14.291432 mm")))
sketch7.addConstraint(Sketcher.Constraint("DistanceX", -1, 1, 24, 2, Q("27.703542 mm")))
sketch7.addConstraint(Sketcher.Constraint("DistanceY", -1, 1, 25, 2, Q("13.13203 mm")))
sketch7.addConstraint(Sketcher.Constraint("DistanceX", -1, 1, 26, 2, Q("19.393318 mm")))
sketch7.addConstraint(Sketcher.Constraint("DistanceY", -1, 1, 28, 2, Q("16.519908 mm")))
sketch7.addConstraint(Sketcher.Constraint("DistanceX", -1, 1, 29, 2, Q("16.961421 mm")))
sketch7.addConstraint(Sketcher.Constraint("DistanceY", -1, 1, 30, 2, Q("19.935058 mm")))
sketch7.addConstraint(Sketcher.Constraint("DistanceY", -1, 1, 32, 2, Q("23.899742 mm")))
sketch7.addConstraint(Sketcher.Constraint("DistanceX", 22, 2, 33, 2, Q("9.30172 mm")))
sketch7.addConstraint(Sketcher.Constraint("DistanceY", 21, 2, 33, 2, Q("5.00188 mm")))
pad7 = body.newObject("PartDesign::Pad", "Pad006")
pad7.Profile = sketch7
pad7.Length = Q("0.125 in")
pad7.Reversed = True

sketch8 = body.newObject("Sketcher::SketchObject", "Sketch007")
sketch8.AttachmentSupport = (doc.getObject("XY_Plane"), [""])
sketch8.MapMode = "FlatFace"
sketch8.AttachmentOffset = App.Placement(V(0, 0, 1 * 25.4), App.Rotation())
sketch8.addGeometry(Part.LineSegment(V(6.697554, 9.934609, 0), V(16.152158, 5.413553, 0)), False)
sketch8.addGeometry(Part.LineSegment(V(16.152158, 5.413553, 0), V(5.267316, 6.465096, 0)), False)
sketch8.addGeometry(Part.LineSegment(V(5.267316, 6.465096, 0), V(8.634948, 2.590987, 0)), False)
sketch8.addGeometry(Part.LineSegment(V(8.634948, 2.590987, 0), V(20.669791, 3.810761, 0)), False)
sketch8.addGeometry(Part.LineSegment(V(20.669791, 3.810761, 0), V(20.669791, 9.11943, 0)), False)
sketch8.addGeometry(Part.LineSegment(V(20.669791, 9.11943, 0), V(21.754377, 16.684575, 0)), False)
sketch8.addGeometry(Part.LineSegment(V(21.754377, 16.684575, 0), V(19.446912, 21.939377, 0)), False)
sketch8.addGeometry(Part.LineSegment(V(19.446912, 21.939377, 0), V(16.152158, 18.037711, 0)), False)
sketch8.addGeometry(Part.LineSegment(V(16.152158, 18.037711, 0), V(17.056057, 9.11943, 0)), False)
sketch8.addGeometry(Part.LineSegment(V(17.056057, 9.11943, 0), V(11.424856, 9.926754, 0)), False)
sketch8.addGeometry(Part.LineSegment(V(11.424856, 9.926754, 0), V(14.110359, 13.98616, 0)), False)
sketch8.addGeometry(Part.LineSegment(V(14.110359, 13.98616, 0), V(12.205224, 19.382989, 0)), False)
sketch8.addGeometry(Part.LineSegment(V(12.205224, 19.382989, 0), V(8.634948, 13.98616, 0)), False)
sketch8.addGeometry(Part.LineSegment(V(8.634948, 13.98616, 0), V(3.837078, 18.037711, 0)), False)
sketch8.addGeometry(Part.LineSegment(V(3.837078, 18.037711, 0), V(6.697554, 9.934609, 0)), False)
sketch8.addConstraint(Sketcher.Constraint("Coincident", 0, 2, 1, 1))
sketch8.addConstraint(Sketcher.Constraint("Coincident", 1, 2, 2, 1))
sketch8.addConstraint(Sketcher.Constraint("Coincident", 2, 2, 3, 1))
sketch8.addConstraint(Sketcher.Constraint("Coincident", 3, 2, 4, 1))
sketch8.addConstraint(Sketcher.Constraint("Coincident", 4, 2, 5, 1))
sketch8.addConstraint(Sketcher.Constraint("Coincident", 5, 2, 6, 1))
sketch8.addConstraint(Sketcher.Constraint("Coincident", 6, 2, 7, 1))
sketch8.addConstraint(Sketcher.Constraint("Coincident", 7, 2, 8, 1))
sketch8.addConstraint(Sketcher.Constraint("Coincident", 8, 2, 9, 1))
sketch8.addConstraint(Sketcher.Constraint("Coincident", 9, 2, 10, 1))
sketch8.addConstraint(Sketcher.Constraint("Coincident", 10, 2, 11, 1))
sketch8.addConstraint(Sketcher.Constraint("Coincident", 11, 2, 12, 1))
sketch8.addConstraint(Sketcher.Constraint("Coincident", 12, 2, 13, 1))
sketch8.addConstraint(Sketcher.Constraint("Coincident", 13, 2, 14, 1))
sketch8.addConstraint(Sketcher.Constraint("Coincident", 14, 2, 0, 1))
sketch8.addConstraint(Sketcher.Constraint("Vertical", 4))
sketch8.addConstraint(Sketcher.Constraint("Perpendicular", 3, 8))
sketch8.addConstraint(Sketcher.Constraint("Perpendicular", 5, 9))
sketch8.addConstraint(Sketcher.Constraint("Parallel", 10, 12))
sketch8.addConstraint(Sketcher.Constraint("Perpendicular", 7, 13))
sketch8.addConstraint(Sketcher.Constraint("Parallel", 11, 14))
sketch8.addConstraint(Sketcher.Constraint("Horizontal", 4, 2, 8, 2))
sketch8.addConstraint(Sketcher.Constraint("Horizontal", 10, 2, 12, 2))
sketch8.addConstraint(Sketcher.Constraint("Horizontal", 7, 2, 13, 2))
sketch8.addConstraint(Sketcher.Constraint("Vertical", 0, 2, 7, 2))
sketch8.addConstraint(Sketcher.Constraint("Vertical", 2, 2, 12, 2))
sketch8.addConstraint(Sketcher.Constraint("Distance", 3, Q("12.096499 mm")))
sketch8.addConstraint(Sketcher.Constraint("Distance", 7, Q("5.106702 mm")))
sketch8.addConstraint(Sketcher.Constraint("Distance", 13, Q("6.279699 mm")))
sketch8.addConstraint(Sketcher.Constraint("DistanceY", 4, 1, 4, 2, Q("5.308669 mm")))
sketch8.addConstraint(Sketcher.Constraint("DistanceX", 0, 2, 8, 2, Q("0.9039 mm")))
sketch8.addConstraint(Sketcher.Constraint("DistanceX", 9, 2, 8, 2, Q("5.631201 mm")))
sketch8.addConstraint(Sketcher.Constraint("DistanceY", 0, 2, 9, 2, Q("4.513201 mm")))
sketch8.addConstraint(Sketcher.Constraint("DistanceX", 10, 2, 7, 2, Q("2.041799 mm")))
sketch8.addConstraint(Sketcher.Constraint("DistanceX", 14, 2, 9, 2, Q("4.727302 mm")))
sketch8.addConstraint(Sketcher.Constraint("Distance", 8, Q("8.963971 mm")))
sketch8.addConstraint(Sketcher.Constraint("Distance", 9, Q("5.688778 mm")))
sketch8.addConstraint(Sketcher.Constraint("Distance", 10, Q("4.86731 mm")))
sketch8.addConstraint(Sketcher.Constraint("Distance", 14, Q("8.593171 mm")))
sketch8.addConstraint(Sketcher.Constraint("DistanceX", -1, 1, 2, 2, Q("8.634948 mm")))
sketch8.addConstraint(Sketcher.Constraint("DistanceY", -1, 1, 3, 2, Q("3.810761 mm")))
sketch8.addConstraint(Sketcher.Constraint("DistanceX", -1, 1, 6, 2, Q("19.446912 mm")))
sketch8.addConstraint(Sketcher.Constraint("DistanceX", 1, 2, 0, 2, Q("10.884841 mm")))
sketch8.addConstraint(Sketcher.Constraint("DistanceY", 2, 2, 1, 2, Q("3.874109 mm")))
sketch8.addConstraint(Sketcher.Constraint("DistanceX", 0, 2, 5, 2, Q("5.602219 mm")))
pad8 = body.newObject("PartDesign::Pad", "Pad007")
pad8.Profile = sketch8
pad8.Length = Q("0.125 in")

doc.recompute()
